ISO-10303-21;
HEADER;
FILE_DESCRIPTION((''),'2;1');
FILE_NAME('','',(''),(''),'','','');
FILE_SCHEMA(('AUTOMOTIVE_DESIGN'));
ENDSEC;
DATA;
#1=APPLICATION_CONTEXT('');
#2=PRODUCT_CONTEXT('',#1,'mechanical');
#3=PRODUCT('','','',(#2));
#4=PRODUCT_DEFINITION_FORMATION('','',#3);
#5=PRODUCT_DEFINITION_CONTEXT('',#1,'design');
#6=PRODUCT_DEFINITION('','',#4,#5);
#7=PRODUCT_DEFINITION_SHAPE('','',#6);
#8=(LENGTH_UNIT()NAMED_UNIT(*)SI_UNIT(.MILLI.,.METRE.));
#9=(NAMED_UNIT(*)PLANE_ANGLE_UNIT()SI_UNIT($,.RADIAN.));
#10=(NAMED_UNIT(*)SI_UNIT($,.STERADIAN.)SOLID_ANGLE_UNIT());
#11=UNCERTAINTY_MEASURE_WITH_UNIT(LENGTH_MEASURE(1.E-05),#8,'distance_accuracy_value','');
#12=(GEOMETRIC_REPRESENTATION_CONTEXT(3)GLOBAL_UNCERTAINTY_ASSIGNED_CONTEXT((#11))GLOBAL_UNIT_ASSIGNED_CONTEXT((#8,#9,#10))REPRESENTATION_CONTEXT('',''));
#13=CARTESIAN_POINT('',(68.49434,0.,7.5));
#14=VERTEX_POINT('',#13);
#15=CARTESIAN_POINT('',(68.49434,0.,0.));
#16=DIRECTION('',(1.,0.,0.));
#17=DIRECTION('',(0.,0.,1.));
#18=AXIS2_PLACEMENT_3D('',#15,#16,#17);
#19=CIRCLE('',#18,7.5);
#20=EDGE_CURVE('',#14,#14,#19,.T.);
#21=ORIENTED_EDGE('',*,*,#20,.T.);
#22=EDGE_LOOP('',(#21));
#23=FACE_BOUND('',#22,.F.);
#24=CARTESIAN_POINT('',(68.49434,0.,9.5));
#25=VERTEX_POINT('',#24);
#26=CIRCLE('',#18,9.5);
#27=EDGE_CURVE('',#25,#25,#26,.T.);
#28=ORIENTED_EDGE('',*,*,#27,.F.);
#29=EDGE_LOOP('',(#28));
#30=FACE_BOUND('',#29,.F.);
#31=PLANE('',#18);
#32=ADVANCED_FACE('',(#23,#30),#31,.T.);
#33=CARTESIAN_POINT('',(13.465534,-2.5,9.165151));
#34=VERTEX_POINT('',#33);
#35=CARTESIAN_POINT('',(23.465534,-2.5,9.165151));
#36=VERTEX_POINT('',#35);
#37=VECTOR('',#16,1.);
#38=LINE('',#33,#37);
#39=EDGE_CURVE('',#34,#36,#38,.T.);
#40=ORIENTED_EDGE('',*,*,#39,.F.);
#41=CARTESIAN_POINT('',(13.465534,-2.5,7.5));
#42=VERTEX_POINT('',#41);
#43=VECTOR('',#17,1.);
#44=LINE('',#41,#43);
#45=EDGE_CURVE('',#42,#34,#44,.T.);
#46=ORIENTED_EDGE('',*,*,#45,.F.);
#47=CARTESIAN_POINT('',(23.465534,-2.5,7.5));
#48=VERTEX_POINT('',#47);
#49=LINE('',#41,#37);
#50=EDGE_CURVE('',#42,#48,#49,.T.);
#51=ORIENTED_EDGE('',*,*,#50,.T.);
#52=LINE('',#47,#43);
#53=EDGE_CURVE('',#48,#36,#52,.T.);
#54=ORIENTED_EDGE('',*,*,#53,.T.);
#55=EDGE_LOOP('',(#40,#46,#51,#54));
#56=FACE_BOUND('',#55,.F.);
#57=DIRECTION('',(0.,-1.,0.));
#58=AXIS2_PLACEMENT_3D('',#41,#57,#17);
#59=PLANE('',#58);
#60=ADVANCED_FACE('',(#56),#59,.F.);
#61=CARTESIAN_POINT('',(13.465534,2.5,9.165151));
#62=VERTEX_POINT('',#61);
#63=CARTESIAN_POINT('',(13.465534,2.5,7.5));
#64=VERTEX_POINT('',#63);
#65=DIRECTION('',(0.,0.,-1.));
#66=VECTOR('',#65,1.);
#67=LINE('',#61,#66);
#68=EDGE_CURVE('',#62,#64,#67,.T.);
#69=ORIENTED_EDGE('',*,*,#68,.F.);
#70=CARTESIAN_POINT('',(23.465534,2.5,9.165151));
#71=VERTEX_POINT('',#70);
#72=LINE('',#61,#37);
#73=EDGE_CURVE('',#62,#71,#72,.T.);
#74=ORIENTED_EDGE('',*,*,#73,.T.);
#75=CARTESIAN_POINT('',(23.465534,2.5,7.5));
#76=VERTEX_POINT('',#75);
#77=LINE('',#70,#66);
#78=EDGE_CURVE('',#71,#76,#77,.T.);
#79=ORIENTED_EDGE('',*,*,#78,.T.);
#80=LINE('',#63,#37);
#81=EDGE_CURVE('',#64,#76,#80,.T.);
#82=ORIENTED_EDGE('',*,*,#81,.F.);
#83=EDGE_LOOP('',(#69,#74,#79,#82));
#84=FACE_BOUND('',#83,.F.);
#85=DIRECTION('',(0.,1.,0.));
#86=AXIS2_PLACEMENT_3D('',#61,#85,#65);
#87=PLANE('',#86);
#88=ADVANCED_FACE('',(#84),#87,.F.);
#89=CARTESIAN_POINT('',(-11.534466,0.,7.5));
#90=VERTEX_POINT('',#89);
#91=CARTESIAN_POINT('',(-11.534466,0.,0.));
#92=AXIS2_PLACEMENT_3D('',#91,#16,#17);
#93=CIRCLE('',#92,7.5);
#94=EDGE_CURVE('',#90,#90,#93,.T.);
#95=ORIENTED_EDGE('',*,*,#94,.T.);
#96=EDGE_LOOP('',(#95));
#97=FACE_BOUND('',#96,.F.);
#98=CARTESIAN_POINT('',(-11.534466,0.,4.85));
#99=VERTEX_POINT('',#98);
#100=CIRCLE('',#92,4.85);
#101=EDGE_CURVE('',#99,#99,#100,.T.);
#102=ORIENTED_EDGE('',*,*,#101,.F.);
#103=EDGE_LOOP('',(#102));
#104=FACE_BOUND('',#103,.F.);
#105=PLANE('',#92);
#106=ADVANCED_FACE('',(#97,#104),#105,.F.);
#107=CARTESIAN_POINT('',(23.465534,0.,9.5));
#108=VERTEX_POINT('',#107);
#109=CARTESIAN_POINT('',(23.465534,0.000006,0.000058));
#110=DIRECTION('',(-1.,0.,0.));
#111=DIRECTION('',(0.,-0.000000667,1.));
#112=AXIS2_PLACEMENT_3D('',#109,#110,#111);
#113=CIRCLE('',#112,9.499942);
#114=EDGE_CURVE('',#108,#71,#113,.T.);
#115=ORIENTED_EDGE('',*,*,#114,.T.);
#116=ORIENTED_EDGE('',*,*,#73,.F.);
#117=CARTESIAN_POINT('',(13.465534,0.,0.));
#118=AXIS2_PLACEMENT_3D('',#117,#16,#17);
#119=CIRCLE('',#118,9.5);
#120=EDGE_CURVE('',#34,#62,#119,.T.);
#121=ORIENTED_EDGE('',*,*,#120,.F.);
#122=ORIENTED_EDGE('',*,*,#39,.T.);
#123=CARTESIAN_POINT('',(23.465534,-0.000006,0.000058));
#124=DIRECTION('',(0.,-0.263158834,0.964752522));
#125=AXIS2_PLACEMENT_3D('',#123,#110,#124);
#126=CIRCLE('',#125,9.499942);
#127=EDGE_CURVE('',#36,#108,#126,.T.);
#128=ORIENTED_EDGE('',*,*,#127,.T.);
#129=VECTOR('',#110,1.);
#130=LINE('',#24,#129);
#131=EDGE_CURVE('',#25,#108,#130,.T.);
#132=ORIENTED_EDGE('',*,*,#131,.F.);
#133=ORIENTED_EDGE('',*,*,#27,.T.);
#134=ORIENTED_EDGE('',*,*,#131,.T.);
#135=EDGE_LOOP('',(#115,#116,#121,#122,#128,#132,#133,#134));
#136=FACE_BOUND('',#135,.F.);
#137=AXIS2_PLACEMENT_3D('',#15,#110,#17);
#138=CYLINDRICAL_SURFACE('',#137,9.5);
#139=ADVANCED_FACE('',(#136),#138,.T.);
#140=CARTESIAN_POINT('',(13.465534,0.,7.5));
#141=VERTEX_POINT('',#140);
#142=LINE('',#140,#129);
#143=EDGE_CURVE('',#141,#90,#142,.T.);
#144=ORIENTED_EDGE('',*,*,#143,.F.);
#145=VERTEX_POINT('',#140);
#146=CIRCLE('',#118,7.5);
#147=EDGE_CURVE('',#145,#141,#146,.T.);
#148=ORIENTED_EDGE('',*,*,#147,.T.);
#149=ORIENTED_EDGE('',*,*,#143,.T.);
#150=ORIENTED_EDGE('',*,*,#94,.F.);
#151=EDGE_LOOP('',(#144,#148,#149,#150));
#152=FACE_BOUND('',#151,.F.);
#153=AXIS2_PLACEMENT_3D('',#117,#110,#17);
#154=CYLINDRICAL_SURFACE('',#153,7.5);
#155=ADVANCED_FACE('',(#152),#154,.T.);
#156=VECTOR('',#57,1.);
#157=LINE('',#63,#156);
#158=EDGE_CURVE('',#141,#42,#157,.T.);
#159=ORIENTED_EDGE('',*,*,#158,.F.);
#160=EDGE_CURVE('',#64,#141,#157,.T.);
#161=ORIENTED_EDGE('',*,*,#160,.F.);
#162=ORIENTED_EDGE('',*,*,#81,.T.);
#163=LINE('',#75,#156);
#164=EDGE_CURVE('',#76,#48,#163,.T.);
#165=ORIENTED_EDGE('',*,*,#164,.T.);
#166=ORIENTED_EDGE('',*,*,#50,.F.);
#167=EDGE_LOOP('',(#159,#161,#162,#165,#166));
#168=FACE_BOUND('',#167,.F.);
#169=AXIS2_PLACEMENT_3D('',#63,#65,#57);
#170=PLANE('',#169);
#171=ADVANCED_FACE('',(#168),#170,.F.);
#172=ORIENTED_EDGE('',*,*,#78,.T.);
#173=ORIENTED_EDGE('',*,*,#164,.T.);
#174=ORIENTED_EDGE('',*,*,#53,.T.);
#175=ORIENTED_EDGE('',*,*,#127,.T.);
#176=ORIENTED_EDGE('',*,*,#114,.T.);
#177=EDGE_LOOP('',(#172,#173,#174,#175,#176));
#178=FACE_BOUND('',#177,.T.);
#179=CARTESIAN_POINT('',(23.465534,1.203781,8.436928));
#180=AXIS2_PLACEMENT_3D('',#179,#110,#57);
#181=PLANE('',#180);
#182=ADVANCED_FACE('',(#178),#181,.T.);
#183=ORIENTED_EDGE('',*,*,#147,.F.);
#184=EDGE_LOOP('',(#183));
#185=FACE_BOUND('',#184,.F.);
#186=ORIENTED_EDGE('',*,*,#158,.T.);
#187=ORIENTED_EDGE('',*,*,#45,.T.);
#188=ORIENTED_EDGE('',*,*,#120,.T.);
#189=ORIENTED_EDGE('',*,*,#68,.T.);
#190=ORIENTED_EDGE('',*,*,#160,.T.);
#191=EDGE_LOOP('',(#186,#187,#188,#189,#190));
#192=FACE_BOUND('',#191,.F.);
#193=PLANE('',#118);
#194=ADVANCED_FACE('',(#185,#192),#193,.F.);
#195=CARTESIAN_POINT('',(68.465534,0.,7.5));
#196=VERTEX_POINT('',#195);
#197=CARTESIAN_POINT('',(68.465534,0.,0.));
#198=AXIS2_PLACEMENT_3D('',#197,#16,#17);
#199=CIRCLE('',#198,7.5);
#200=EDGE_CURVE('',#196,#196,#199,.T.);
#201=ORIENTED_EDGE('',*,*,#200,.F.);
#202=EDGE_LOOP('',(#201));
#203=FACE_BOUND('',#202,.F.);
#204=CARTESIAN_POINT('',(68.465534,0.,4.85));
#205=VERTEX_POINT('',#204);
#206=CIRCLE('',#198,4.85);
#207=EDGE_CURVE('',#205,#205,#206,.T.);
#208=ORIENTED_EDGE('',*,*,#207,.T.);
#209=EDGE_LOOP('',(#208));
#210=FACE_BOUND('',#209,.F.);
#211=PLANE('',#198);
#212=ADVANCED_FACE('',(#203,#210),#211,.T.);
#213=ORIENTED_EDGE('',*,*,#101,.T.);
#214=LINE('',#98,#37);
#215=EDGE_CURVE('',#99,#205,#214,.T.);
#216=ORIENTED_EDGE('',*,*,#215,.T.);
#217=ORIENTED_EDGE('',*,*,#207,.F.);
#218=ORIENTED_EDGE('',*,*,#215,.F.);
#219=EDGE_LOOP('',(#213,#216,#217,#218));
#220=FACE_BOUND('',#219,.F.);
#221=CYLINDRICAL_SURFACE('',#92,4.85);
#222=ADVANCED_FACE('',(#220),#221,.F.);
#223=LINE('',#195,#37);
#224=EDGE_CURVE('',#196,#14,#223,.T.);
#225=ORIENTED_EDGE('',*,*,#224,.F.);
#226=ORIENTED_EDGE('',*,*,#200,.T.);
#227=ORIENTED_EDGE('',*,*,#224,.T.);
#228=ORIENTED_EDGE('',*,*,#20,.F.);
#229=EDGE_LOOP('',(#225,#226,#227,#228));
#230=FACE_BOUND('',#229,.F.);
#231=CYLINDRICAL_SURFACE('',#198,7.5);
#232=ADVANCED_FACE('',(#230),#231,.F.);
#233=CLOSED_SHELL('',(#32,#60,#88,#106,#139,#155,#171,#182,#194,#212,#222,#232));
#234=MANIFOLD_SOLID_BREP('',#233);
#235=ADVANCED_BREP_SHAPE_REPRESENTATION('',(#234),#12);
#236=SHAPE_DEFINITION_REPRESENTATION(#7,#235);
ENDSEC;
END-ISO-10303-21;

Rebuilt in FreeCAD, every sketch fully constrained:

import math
import FreeCAD as App
import Part
import Sketcher

V = App.Vector


def add_polygon(sketch, points):
    """Adds a closed chain of lines whose ends are joined by coincident constraints."""
    first, n = sketch.GeometryCount, len(points)
    for a, b in zip(points, points[1:] + points[:1]):
        sketch.addGeometry(Part.LineSegment(App.Vector(*a, 0), App.Vector(*b, 0)), False)
    for i in range(n):
        sketch.addConstraint(Sketcher.Constraint("Coincident", first + i, 2, first + (i + 1) % n, 1))

doc = App.newDocument("Part")
body = doc.addObject("PartDesign::Body", "Body")

# Sketch on XZ plane
sketch1 = body.newObject("Sketcher::SketchObject", "Sketch")
sketch1.AttachmentSupport = (doc.getObject("XZ_Plane"), [""])
sketch1.MapMode = "FlatFace"
add_polygon(sketch1, [(-11.534, 7.5), (-11.534, 4.85), (68.466, 4.85), (68.466, 7.5), (68.494, 7.5), (68.494, 9.5), (13.466, 9.5), (13.466, 7.5)])  # lines 0-7
sketch1.addConstraint(Sketcher.Constraint("Vertical", 0))
sketch1.addConstraint(Sketcher.Constraint("Horizontal", 1))
sketch1.addConstraint(Sketcher.Constraint("Vertical", 2))
sketch1.addConstraint(Sketcher.Constraint("Horizontal", 3))
sketch1.addConstraint(Sketcher.Constraint("Vertical", 4))
sketch1.addConstraint(Sketcher.Constraint("Horizontal", 5))
sketch1.addConstraint(Sketcher.Constraint("Vertical", 6))
sketch1.addConstraint(Sketcher.Constraint("Horizontal", 7))
sketch1.addConstraint(Sketcher.Constraint("Horizontal", 3, 2, 6, 2))
sketch1.addConstraint(Sketcher.Constraint("DistanceX", 1, 1, 1, 2, 80.0))
sketch1.addConstraint(Sketcher.Constraint("DistanceX", 7, 2, 7, 1, 25.0))
sketch1.addConstraint(Sketcher.Constraint("DistanceY", 4, 1, 4, 2, 2.0))
sketch1.addConstraint(Sketcher.Constraint("DistanceY", 0, 2, 0, 1, 2.65))
sketch1.addConstraint(Sketcher.Constraint("DistanceY", -1, 1, 2, 2, 7.5))
sketch1.addConstraint(Sketcher.Constraint("DistanceX", 3, 1, 3, 2, 0.028806))
sketch1.addConstraint(Sketcher.Constraint("DistanceX", -1, 1, 3, 2, 68.49434))
revolution = body.newObject("PartDesign::Revolution", "Revolution")
revolution.Profile = sketch1
revolution.ReferenceAxis = (sketch1, ["H_Axis"])
revolution.Angle = 360

# Sketch on YZ plane
sketch2 = body.newObject("Sketcher::SketchObject", "Sketch001")
sketch2.AttachmentSupport = (doc.getObject("YZ_Plane"), [""])
sketch2.MapMode = "FlatFace"
sketch2.AttachmentOffset = App.Placement(V(0, 0, 13.465534), App.Rotation())
sketch2.addGeometry(Part.LineSegment(V(2.5, 7.5, 0), V(-2.5, 7.5, 0)), False)
sketch2.addGeometry(Part.LineSegment(V(-2.5, 7.5, 0), V(-2.5, 9.2, 0)), False)
sketch2.addGeometry(Part.ArcOfCircle(Part.Circle(V(0, 0, 0), V(0, 0, 1), 9.5), math.radians(90), math.radians(105.26)), False)
sketch2.addGeometry(Part.ArcOfCircle(Part.Circle(V(0, 0, 0), V(0, 0, 1), 9.5), math.radians(74.74), math.radians(90)), False)
sketch2.addGeometry(Part.LineSegment(V(2.5, 9.2, 0), V(2.5, 7.5, 0)), False)
sketch2.addConstraint(Sketcher.Constraint("Coincident", 0, 2, 1, 1))
sketch2.addConstraint(Sketcher.Constraint("Coincident", 1, 2, 2, 2))
sketch2.addConstraint(Sketcher.Constraint("Tangent", 2, 1, 3, 2))
sketch2.addConstraint(Sketcher.Constraint("Coincident", 3, 1, 4, 1))
sketch2.addConstraint(Sketcher.Constraint("Coincident", 4, 2, 0, 1))
sketch2.addConstraint(Sketcher.Constraint("Horizontal", 0))
sketch2.addConstraint(Sketcher.Constraint("Vertical", 1))
sketch2.addConstraint(Sketcher.Constraint("Vertical", 4))
sketch2.addConstraint(Sketcher.Constraint("Equal", 2, 3))
sketch2.addConstraint(Sketcher.Constraint("Symmetric", 1, 2, 3, 1, -2))
sketch2.addConstraint(Sketcher.Constraint("PointOnObject", 2, 1, -2))
sketch2.addConstraint(Sketcher.Constraint("DistanceX", 0, 2, 0, 1, 5.0))
sketch2.addConstraint(Sketcher.Constraint("DistanceY", 0, 2, 2, 1, 2.0))
sketch2.addConstraint(Sketcher.Constraint("DistanceY", -1, 1, 0, 2, 7.5))
sketch2.addConstraint(Sketcher.Constraint("Radius", 2, 9.499942))
pocket1 = body.newObject("PartDesign::Pocket", "Pocket")
pocket1.Profile = sketch2
pocket1.Length = 10
pocket1.Reversed = True

doc.recompute()
